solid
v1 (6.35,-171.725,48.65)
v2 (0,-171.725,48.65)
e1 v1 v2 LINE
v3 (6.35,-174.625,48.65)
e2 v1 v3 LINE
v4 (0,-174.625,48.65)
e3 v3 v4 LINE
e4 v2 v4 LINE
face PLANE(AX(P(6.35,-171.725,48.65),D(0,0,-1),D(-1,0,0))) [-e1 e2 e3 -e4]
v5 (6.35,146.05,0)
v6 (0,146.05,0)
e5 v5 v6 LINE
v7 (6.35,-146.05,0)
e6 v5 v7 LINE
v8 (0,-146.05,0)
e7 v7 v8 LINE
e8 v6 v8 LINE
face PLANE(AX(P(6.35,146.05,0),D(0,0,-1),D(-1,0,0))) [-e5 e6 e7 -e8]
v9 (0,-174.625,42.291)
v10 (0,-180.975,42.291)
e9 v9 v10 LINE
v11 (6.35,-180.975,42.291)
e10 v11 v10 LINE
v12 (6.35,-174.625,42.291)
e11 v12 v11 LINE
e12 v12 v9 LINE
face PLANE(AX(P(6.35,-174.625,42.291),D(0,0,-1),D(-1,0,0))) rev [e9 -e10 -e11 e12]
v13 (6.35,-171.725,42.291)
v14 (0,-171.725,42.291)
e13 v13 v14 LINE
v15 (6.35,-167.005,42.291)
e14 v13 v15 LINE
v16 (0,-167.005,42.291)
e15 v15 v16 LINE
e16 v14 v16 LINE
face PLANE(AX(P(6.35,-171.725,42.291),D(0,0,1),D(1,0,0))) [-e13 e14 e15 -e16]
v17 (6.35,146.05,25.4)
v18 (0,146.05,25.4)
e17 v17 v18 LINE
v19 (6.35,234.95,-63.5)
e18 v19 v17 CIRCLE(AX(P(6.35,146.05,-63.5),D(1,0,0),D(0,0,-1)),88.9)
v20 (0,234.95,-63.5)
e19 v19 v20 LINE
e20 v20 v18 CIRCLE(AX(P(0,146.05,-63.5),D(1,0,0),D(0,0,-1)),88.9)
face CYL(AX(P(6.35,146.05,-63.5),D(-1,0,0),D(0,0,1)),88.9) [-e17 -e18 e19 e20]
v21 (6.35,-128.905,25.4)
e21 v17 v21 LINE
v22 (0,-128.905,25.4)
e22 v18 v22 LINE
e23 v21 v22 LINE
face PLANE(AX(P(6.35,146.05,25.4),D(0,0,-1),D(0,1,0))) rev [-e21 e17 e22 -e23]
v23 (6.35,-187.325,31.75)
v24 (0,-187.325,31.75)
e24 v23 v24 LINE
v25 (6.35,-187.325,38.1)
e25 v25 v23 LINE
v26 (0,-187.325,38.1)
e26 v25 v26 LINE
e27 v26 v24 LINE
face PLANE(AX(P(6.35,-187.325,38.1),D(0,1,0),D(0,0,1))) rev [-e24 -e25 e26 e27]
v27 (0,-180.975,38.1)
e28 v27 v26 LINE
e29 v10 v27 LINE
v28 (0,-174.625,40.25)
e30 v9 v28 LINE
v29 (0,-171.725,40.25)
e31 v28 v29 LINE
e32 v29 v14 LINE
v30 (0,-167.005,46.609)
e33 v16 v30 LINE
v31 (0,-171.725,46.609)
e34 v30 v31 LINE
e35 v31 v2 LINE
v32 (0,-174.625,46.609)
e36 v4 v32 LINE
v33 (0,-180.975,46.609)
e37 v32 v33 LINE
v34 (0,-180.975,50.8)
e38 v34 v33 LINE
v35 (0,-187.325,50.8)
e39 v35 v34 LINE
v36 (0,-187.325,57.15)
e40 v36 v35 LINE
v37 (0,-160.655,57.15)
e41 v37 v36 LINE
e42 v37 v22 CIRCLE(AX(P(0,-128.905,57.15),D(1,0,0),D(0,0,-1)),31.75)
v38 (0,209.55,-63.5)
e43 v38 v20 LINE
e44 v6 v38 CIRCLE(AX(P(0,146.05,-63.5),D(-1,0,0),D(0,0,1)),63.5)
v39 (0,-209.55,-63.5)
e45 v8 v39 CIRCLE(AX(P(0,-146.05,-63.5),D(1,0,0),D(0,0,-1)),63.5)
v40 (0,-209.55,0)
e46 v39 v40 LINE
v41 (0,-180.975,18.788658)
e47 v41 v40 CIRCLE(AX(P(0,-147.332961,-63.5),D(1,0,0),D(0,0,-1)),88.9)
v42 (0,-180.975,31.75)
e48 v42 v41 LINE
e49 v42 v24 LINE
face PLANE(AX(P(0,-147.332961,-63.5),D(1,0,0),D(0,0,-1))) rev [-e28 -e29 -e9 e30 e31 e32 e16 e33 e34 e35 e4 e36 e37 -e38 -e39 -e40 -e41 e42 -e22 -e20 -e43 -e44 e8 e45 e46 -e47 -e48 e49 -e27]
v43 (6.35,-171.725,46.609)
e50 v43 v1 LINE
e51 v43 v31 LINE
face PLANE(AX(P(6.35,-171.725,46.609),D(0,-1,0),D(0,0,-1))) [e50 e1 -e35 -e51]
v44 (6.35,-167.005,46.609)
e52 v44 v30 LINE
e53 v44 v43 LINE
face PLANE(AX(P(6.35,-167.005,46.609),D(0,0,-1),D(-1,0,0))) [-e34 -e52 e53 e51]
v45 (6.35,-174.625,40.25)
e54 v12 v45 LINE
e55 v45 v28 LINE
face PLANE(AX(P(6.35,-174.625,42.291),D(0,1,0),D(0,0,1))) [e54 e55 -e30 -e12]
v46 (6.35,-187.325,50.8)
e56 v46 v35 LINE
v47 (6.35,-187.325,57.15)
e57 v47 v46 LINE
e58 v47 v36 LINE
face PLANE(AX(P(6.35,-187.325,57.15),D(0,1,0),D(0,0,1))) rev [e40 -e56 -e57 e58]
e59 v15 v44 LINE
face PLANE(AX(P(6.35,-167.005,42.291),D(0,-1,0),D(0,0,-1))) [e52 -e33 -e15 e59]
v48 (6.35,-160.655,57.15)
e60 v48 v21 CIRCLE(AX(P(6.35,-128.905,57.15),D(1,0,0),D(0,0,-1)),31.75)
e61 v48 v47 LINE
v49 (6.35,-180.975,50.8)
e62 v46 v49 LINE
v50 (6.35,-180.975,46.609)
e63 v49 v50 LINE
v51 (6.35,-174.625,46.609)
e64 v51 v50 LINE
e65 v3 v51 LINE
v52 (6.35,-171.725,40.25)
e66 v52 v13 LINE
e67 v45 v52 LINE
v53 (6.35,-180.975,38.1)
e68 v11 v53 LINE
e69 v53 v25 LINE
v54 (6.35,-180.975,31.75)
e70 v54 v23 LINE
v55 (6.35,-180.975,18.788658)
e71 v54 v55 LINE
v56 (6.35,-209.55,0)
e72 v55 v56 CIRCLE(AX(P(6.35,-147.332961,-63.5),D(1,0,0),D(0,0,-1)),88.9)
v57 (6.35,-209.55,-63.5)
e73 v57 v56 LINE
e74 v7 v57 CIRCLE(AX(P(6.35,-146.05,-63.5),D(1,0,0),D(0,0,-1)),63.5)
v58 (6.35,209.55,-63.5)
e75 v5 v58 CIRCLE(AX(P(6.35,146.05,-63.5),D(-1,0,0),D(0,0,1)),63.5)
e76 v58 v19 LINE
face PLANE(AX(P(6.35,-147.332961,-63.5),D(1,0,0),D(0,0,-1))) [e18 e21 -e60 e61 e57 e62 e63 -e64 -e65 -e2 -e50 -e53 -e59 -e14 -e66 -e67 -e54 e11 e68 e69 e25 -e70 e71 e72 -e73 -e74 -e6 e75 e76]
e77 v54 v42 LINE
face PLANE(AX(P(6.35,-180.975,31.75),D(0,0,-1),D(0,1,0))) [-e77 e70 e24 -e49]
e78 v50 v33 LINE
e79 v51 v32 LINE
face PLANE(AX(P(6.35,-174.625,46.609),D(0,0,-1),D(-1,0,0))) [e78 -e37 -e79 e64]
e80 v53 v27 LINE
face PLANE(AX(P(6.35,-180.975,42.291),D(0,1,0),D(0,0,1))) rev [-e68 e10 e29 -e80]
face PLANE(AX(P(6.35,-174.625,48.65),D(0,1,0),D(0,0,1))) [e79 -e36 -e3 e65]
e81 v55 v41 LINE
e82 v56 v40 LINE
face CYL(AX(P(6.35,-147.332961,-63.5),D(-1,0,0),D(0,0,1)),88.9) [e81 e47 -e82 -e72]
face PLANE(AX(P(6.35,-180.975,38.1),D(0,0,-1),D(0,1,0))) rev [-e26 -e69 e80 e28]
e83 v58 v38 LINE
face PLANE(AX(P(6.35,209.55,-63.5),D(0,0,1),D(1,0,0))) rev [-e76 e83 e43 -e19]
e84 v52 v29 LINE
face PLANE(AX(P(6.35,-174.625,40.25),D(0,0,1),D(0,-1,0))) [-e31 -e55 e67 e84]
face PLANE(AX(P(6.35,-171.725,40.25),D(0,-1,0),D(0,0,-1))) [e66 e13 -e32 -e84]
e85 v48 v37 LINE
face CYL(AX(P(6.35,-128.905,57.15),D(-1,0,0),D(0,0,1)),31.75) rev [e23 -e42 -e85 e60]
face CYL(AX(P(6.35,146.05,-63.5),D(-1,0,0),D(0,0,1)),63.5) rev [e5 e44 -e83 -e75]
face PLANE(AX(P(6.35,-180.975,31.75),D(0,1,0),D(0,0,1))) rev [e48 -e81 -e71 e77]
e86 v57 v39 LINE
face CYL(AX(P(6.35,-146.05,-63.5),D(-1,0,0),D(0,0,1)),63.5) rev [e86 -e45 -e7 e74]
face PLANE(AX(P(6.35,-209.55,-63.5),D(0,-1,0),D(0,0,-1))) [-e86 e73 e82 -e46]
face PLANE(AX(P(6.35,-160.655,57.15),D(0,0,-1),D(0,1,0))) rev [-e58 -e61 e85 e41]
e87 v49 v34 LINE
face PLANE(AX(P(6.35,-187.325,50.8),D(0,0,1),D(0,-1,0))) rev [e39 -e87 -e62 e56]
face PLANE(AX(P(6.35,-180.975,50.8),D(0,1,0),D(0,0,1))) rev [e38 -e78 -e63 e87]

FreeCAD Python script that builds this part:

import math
import FreeCAD as App
import Part
import Sketcher
Q = App.Units.Quantity

doc = App.newDocument("Part")
params = doc.addObject("Spreadsheet::Sheet", "Params")
for row, (alias, value) in enumerate([
    ("sketch1_radius", "3.5 in"),
    ("sketch1_radius2", "2.5 in"),
    ("sketch1_radius3", "1.25 in"),
    ("sketch1_width", "11.5 in"),
    ("sketch1_width2", "1.05 in"),
    ("pad1_length", "0.25 in"),
], start=1):
    params.set(f"A{row}", alias)
    params.set(f"B{row}", "=" + value)
    params.setAlias(f"B{row}", alias)

body = doc.addObject("PartDesign::Body", "Body")

sketch1 = doc.addObject("Sketcher::SketchObject", "Sketch")
body.addObject(sketch1)
sketch1.AttachmentSupport = (doc.YZ_Plane, [""])
sketch1.MapMode = "FlatFace"
sketch1.addGeometry(Part.LineSegment(App.Vector(209.6, -63.5, 0), App.Vector(234.9, -63.5, 0)), False)
sketch1.addGeometry(Part.ArcOfCircle(Part.Circle(App.Vector(146, -63.5, 0), App.Vector(0, 0, 1), 88.9), math.radians(0), math.radians(90)), False)
sketch1.addGeometry(Part.LineSegment(App.Vector(146.1, 25.4, 0), App.Vector(-128.9, 25.4, 0)), False)
sketch1.addGeometry(Part.ArcOfCircle(Part.Circle(App.Vector(-128.9, 57.1, 0), App.Vector(0, 0, 1), 31.7), math.radians(180), math.radians(270)), False)
sketch1.addGeometry(Part.LineSegment(App.Vector(-160.7, 57.1, 0), App.Vector(-187.3, 57.1, 0)), False)
sketch1.addGeometry(Part.LineSegment(App.Vector(-187.3, 57.1, 0), App.Vector(-187.3, 50.8, 0)), False)
sketch1.addGeometry(Part.LineSegment(App.Vector(-187.3, 50.8, 0), App.Vector(-181, 50.8, 0)), False)
sketch1.addGeometry(Part.LineSegment(App.Vector(-181, 50.8, 0), App.Vector(-181, 46.6, 0)), False)
sketch1.addGeometry(Part.LineSegment(App.Vector(-181, 46.6, 0), App.Vector(-174.6, 46.6, 0)), False)
sketch1.addGeometry(Part.LineSegment(App.Vector(-174.6, 46.6, 0), App.Vector(-174.6, 48.6, 0)), False)
sketch1.addGeometry(Part.LineSegment(App.Vector(-174.6, 48.6, 0), App.Vector(-171.7, 48.6, 0)), False)
sketch1.addGeometry(Part.LineSegment(App.Vector(-171.7, 48.6, 0), App.Vector(-171.7, 46.6, 0)), False)
sketch1.addGeometry(Part.LineSegment(App.Vector(-171.7, 46.6, 0), App.Vector(-167, 46.6, 0)), False)
sketch1.addGeometry(Part.LineSegment(App.Vector(-167, 46.6, 0), App.Vector(-167, 42.3, 0)), False)
sketch1.addGeometry(Part.LineSegment(App.Vector(-167, 42.3, 0), App.Vector(-171.7, 42.3, 0)), False)
sketch1.addGeometry(Part.LineSegment(App.Vector(-171.7, 42.3, 0), App.Vector(-171.7, 40.3, 0)), False)
sketch1.addGeometry(Part.LineSegment(App.Vector(-171.7, 40.3, 0), App.Vector(-174.6, 40.3, 0)), False)
sketch1.addGeometry(Part.LineSegment(App.Vector(-174.6, 40.3, 0), App.Vector(-174.6, 42.3, 0)), False)
sketch1.addGeometry(Part.LineSegment(App.Vector(-174.6, 42.3, 0), App.Vector(-181, 42.3, 0)), False)
sketch1.addGeometry(Part.LineSegment(App.Vector(-181, 42.3, 0), App.Vector(-181, 38.1, 0)), False)
sketch1.addGeometry(Part.LineSegment(App.Vector(-181, 38.1, 0), App.Vector(-187.3, 38.1, 0)), False)
sketch1.addGeometry(Part.LineSegment(App.Vector(-187.3, 38.1, 0), App.Vector(-187.3, 31.8, 0)), False)
sketch1.addGeometry(Part.LineSegment(App.Vector(-187.3, 31.8, 0), App.Vector(-181, 31.8, 0)), False)
sketch1.addGeometry(Part.LineSegment(App.Vector(-181, 31.8, 0), App.Vector(-181, 18.8, 0)), False)
sketch1.addGeometry(Part.ArcOfCircle(Part.Circle(App.Vector(-147.3, -63.5, 0), App.Vector(0, 0, 1), 88.9), math.radians(112), math.radians(134)), False)
sketch1.addGeometry(Part.LineSegment(App.Vector(-209.6, 0, 0), App.Vector(-209.6, -63.5, 0)), False)
sketch1.addGeometry(Part.ArcOfCircle(Part.Circle(App.Vector(-146, -63.5, 0), App.Vector(0, 0, 1), 63.5), math.radians(90), math.radians(180)), False)
sketch1.addGeometry(Part.LineSegment(App.Vector(-146.1, 0, 0), App.Vector(146.1, 0, 0)), False)
sketch1.addGeometry(Part.ArcOfCircle(Part.Circle(App.Vector(146, -63.5, 0), App.Vector(0, 0, 1), 63.5), math.radians(0), math.radians(90)), False)
sketch1.addConstraint(Sketcher.Constraint("Coincident", 0, 2, 1, 1))
sketch1.addConstraint(Sketcher.Constraint("Tangent", 1, 2, 2, 1))
sketch1.addConstraint(Sketcher.Constraint("Tangent", 2, 2, 3, 2))
sketch1.addConstraint(Sketcher.Constraint("Coincident", 3, 1, 4, 1))
sketch1.addConstraint(Sketcher.Constraint("Coincident", 4, 2, 5, 1))
sketch1.addConstraint(Sketcher.Constraint("Coincident", 5, 2, 6, 1))
sketch1.addConstraint(Sketcher.Constraint("Coincident", 6, 2, 7, 1))
sketch1.addConstraint(Sketcher.Constraint("Coincident", 7, 2, 8, 1))
sketch1.addConstraint(Sketcher.Constraint("Coincident", 8, 2, 9, 1))
sketch1.addConstraint(Sketcher.Constraint("Coincident", 9, 2, 10, 1))
sketch1.addConstraint(Sketcher.Constraint("Coincident", 10, 2, 11, 1))
sketch1.addConstraint(Sketcher.Constraint("Coincident", 11, 2, 12, 1))
sketch1.addConstraint(Sketcher.Constraint("Coincident", 12, 2, 13, 1))
sketch1.addConstraint(Sketcher.Constraint("Coincident", 13, 2, 14, 1))
sketch1.addConstraint(Sketcher.Constraint("Coincident", 14, 2, 15, 1))
sketch1.addConstraint(Sketcher.Constraint("Coincident", 15, 2, 16, 1))
sketch1.addConstraint(Sketcher.Constraint("Coincident", 16, 2, 17, 1))
sketch1.addConstraint(Sketcher.Constraint("Coincident", 17, 2, 18, 1))
sketch1.addConstraint(Sketcher.Constraint("Coincident", 18, 2, 19, 1))
sketch1.addConstraint(Sketcher.Constraint("Coincident", 19, 2, 20, 1))
sketch1.addConstraint(Sketcher.Constraint("Coincident", 20, 2, 21, 1))
sketch1.addConstraint(Sketcher.Constraint("Coincident", 21, 2, 22, 1))
sketch1.addConstraint(Sketcher.Constraint("Coincident", 22, 2, 23, 1))
sketch1.addConstraint(Sketcher.Constraint("Coincident", 23, 2, 24, 1))
sketch1.addConstraint(Sketcher.Constraint("Coincident", 24, 2, 25, 1))
sketch1.addConstraint(Sketcher.Constraint("Tangent", 25, 2, 26, 2))
sketch1.addConstraint(Sketcher.Constraint("Tangent", 26, 1, 27, 1))
sketch1.addConstraint(Sketcher.Constraint("Tangent", 27, 2, 28, 2))
sketch1.addConstraint(Sketcher.Constraint("Coincident", 28, 1, 0, 1))
sketch1.addConstraint(Sketcher.Constraint("Horizontal", 0))
sketch1.addConstraint(Sketcher.Constraint("Horizontal", 2))
sketch1.addConstraint(Sketcher.Constraint("Horizontal", 4))
sketch1.addConstraint(Sketcher.Constraint("Vertical", 5))
sketch1.addConstraint(Sketcher.Constraint("Horizontal", 6))
sketch1.addConstraint(Sketcher.Constraint("Vertical", 7))
sketch1.addConstraint(Sketcher.Constraint("Horizontal", 8))
sketch1.addConstraint(Sketcher.Constraint("Vertical", 9))
sketch1.addConstraint(Sketcher.Constraint("Horizontal", 10))
sketch1.addConstraint(Sketcher.Constraint("Vertical", 11))
sketch1.addConstraint(Sketcher.Constraint("Horizontal", 12))
sketch1.addConstraint(Sketcher.Constraint("Vertical", 13))
sketch1.addConstraint(Sketcher.Constraint("Horizontal", 14))
sketch1.addConstraint(Sketcher.Constraint("Vertical", 15))
sketch1.addConstraint(Sketcher.Constraint("Horizontal", 16))
sketch1.addConstraint(Sketcher.Constraint("Vertical", 17))
sketch1.addConstraint(Sketcher.Constraint("Horizontal", 18))
sketch1.addConstraint(Sketcher.Constraint("Vertical", 19))
sketch1.addConstraint(Sketcher.Constraint("Horizontal", 20))
sketch1.addConstraint(Sketcher.Constraint("Vertical", 21))
sketch1.addConstraint(Sketcher.Constraint("Horizontal", 22))
sketch1.addConstraint(Sketcher.Constraint("Vertical", 23))
sketch1.addConstraint(Sketcher.Constraint("Vertical", 25))
sketch1.addConstraint(Sketcher.Constraint("Horizontal", 27))
sketch1.addConstraint(Sketcher.Constraint("Coincident", 28, 3, 1, 3))
sketch1.addConstraint(Sketcher.Constraint("Equal", 1, 24))
sketch1.addConstraint(Sketcher.Constraint("Equal", 26, 28))
sketch1.addConstraint(Sketcher.Constraint("Symmetric", 26, 1, 27, 2, -1, 1))
sketch1.addConstraint(Sketcher.Constraint("PointOnObject", 24, 2, -1))
sketch1.addConstraint(Sketcher.Constraint("Horizontal", 1, 3, 24, 3))
sketch1.addConstraint(Sketcher.Constraint("Horizontal", 28, 3, 0, 2))
sketch1.addConstraint(Sketcher.Constraint("Horizontal", 8, 2, 11, 2))
sketch1.addConstraint(Sketcher.Constraint("Horizontal", 14, 2, 17, 2))
sketch1.addConstraint(Sketcher.Constraint("Vertical", 11, 2, 14, 2))
sketch1.addConstraint(Sketcher.Constraint("Vertical", 9, 2, 16, 2))
sketch1.addConstraint(Sketcher.Constraint("Vertical", 7, 2, 18, 2))
sketch1.addConstraint(Sketcher.Constraint("Vertical", 5, 2, 20, 2))
sketch1.addConstraint(Sketcher.Constraint("Vertical", 19, 2, 22, 2))
sketch1.addConstraint(Sketcher.Constraint("Equal", 6, 8))
sketch1.addConstraint(Sketcher.Constraint("Equal", 22, 5))
sketch1.addConstraint(Sketcher.Constraint("Equal", 11, 15))
sketch1.addConstraint(Sketcher.Constraint("Equal", 7, 19))
sketch1.addConstraint(Sketcher.Constraint("Equal", 5, 21))
sketch1.addConstraint(Sketcher.Constraint("Radius", 1, Q("3.5 in")))
sketch1.addConstraint(Sketcher.Constraint("Radius", 26, Q("2.5 in")))
sketch1.addConstraint(Sketcher.Constraint("Radius", 3, Q("1.25 in")))
sketch1.addConstraint(Sketcher.Constraint("DistanceX", 27, 1, 27, 2, Q("11.5 in")))
sketch1.addConstraint(Sketcher.Constraint("DistanceY", -1, 1, 5, 2, Q("2 in")))
sketch1.addConstraint(Sketcher.Constraint("DistanceX", 4, 2, 4, 1, Q("1.05 in")))
sketch1.addConstraint(Sketcher.Constraint("DistanceX", 6, 1, 6, 2, Q("0.25 in")))
sketch1.addConstraint(Sketcher.Constraint("DistanceY", 13, 2, 13, 1, Q("0.17 in")))
sketch1.addConstraint(Sketcher.Constraint("DistanceY", -1, 1, 19, 2, Q("1.5 in")))
sketch1.addConstraint(Sketcher.Constraint("DistanceX", 8, 2, 12, 2, Q("0.3 in")))
sketch1.addConstraint(Sketcher.Constraint("DistanceX", 2, 2, 2, 1, Q("10.825 in")))
sketch1.addConstraint(Sketcher.Constraint("DistanceX", 10, 1, 10, 2, 2.9))
sketch1.addConstraint(Sketcher.Constraint("DistanceY", 9, 1, 9, 2, 2.041))
sketch1.setExpression("Constraints[72]", "Params.sketch1_radius")
sketch1.setExpression("Constraints[73]", "Params.sketch1_radius2")
sketch1.setExpression("Constraints[74]", "Params.sketch1_radius3")
sketch1.setExpression("Constraints[75]", "Params.sketch1_width")
sketch1.setExpression("Constraints[77]", "Params.sketch1_width2")
pad1 = doc.addObject("PartDesign::Pad", "Pad")
body.addObject(pad1)
pad1.Profile = sketch1
pad1.setExpression("Length", "Params.pad1_length")

doc.recompute()
